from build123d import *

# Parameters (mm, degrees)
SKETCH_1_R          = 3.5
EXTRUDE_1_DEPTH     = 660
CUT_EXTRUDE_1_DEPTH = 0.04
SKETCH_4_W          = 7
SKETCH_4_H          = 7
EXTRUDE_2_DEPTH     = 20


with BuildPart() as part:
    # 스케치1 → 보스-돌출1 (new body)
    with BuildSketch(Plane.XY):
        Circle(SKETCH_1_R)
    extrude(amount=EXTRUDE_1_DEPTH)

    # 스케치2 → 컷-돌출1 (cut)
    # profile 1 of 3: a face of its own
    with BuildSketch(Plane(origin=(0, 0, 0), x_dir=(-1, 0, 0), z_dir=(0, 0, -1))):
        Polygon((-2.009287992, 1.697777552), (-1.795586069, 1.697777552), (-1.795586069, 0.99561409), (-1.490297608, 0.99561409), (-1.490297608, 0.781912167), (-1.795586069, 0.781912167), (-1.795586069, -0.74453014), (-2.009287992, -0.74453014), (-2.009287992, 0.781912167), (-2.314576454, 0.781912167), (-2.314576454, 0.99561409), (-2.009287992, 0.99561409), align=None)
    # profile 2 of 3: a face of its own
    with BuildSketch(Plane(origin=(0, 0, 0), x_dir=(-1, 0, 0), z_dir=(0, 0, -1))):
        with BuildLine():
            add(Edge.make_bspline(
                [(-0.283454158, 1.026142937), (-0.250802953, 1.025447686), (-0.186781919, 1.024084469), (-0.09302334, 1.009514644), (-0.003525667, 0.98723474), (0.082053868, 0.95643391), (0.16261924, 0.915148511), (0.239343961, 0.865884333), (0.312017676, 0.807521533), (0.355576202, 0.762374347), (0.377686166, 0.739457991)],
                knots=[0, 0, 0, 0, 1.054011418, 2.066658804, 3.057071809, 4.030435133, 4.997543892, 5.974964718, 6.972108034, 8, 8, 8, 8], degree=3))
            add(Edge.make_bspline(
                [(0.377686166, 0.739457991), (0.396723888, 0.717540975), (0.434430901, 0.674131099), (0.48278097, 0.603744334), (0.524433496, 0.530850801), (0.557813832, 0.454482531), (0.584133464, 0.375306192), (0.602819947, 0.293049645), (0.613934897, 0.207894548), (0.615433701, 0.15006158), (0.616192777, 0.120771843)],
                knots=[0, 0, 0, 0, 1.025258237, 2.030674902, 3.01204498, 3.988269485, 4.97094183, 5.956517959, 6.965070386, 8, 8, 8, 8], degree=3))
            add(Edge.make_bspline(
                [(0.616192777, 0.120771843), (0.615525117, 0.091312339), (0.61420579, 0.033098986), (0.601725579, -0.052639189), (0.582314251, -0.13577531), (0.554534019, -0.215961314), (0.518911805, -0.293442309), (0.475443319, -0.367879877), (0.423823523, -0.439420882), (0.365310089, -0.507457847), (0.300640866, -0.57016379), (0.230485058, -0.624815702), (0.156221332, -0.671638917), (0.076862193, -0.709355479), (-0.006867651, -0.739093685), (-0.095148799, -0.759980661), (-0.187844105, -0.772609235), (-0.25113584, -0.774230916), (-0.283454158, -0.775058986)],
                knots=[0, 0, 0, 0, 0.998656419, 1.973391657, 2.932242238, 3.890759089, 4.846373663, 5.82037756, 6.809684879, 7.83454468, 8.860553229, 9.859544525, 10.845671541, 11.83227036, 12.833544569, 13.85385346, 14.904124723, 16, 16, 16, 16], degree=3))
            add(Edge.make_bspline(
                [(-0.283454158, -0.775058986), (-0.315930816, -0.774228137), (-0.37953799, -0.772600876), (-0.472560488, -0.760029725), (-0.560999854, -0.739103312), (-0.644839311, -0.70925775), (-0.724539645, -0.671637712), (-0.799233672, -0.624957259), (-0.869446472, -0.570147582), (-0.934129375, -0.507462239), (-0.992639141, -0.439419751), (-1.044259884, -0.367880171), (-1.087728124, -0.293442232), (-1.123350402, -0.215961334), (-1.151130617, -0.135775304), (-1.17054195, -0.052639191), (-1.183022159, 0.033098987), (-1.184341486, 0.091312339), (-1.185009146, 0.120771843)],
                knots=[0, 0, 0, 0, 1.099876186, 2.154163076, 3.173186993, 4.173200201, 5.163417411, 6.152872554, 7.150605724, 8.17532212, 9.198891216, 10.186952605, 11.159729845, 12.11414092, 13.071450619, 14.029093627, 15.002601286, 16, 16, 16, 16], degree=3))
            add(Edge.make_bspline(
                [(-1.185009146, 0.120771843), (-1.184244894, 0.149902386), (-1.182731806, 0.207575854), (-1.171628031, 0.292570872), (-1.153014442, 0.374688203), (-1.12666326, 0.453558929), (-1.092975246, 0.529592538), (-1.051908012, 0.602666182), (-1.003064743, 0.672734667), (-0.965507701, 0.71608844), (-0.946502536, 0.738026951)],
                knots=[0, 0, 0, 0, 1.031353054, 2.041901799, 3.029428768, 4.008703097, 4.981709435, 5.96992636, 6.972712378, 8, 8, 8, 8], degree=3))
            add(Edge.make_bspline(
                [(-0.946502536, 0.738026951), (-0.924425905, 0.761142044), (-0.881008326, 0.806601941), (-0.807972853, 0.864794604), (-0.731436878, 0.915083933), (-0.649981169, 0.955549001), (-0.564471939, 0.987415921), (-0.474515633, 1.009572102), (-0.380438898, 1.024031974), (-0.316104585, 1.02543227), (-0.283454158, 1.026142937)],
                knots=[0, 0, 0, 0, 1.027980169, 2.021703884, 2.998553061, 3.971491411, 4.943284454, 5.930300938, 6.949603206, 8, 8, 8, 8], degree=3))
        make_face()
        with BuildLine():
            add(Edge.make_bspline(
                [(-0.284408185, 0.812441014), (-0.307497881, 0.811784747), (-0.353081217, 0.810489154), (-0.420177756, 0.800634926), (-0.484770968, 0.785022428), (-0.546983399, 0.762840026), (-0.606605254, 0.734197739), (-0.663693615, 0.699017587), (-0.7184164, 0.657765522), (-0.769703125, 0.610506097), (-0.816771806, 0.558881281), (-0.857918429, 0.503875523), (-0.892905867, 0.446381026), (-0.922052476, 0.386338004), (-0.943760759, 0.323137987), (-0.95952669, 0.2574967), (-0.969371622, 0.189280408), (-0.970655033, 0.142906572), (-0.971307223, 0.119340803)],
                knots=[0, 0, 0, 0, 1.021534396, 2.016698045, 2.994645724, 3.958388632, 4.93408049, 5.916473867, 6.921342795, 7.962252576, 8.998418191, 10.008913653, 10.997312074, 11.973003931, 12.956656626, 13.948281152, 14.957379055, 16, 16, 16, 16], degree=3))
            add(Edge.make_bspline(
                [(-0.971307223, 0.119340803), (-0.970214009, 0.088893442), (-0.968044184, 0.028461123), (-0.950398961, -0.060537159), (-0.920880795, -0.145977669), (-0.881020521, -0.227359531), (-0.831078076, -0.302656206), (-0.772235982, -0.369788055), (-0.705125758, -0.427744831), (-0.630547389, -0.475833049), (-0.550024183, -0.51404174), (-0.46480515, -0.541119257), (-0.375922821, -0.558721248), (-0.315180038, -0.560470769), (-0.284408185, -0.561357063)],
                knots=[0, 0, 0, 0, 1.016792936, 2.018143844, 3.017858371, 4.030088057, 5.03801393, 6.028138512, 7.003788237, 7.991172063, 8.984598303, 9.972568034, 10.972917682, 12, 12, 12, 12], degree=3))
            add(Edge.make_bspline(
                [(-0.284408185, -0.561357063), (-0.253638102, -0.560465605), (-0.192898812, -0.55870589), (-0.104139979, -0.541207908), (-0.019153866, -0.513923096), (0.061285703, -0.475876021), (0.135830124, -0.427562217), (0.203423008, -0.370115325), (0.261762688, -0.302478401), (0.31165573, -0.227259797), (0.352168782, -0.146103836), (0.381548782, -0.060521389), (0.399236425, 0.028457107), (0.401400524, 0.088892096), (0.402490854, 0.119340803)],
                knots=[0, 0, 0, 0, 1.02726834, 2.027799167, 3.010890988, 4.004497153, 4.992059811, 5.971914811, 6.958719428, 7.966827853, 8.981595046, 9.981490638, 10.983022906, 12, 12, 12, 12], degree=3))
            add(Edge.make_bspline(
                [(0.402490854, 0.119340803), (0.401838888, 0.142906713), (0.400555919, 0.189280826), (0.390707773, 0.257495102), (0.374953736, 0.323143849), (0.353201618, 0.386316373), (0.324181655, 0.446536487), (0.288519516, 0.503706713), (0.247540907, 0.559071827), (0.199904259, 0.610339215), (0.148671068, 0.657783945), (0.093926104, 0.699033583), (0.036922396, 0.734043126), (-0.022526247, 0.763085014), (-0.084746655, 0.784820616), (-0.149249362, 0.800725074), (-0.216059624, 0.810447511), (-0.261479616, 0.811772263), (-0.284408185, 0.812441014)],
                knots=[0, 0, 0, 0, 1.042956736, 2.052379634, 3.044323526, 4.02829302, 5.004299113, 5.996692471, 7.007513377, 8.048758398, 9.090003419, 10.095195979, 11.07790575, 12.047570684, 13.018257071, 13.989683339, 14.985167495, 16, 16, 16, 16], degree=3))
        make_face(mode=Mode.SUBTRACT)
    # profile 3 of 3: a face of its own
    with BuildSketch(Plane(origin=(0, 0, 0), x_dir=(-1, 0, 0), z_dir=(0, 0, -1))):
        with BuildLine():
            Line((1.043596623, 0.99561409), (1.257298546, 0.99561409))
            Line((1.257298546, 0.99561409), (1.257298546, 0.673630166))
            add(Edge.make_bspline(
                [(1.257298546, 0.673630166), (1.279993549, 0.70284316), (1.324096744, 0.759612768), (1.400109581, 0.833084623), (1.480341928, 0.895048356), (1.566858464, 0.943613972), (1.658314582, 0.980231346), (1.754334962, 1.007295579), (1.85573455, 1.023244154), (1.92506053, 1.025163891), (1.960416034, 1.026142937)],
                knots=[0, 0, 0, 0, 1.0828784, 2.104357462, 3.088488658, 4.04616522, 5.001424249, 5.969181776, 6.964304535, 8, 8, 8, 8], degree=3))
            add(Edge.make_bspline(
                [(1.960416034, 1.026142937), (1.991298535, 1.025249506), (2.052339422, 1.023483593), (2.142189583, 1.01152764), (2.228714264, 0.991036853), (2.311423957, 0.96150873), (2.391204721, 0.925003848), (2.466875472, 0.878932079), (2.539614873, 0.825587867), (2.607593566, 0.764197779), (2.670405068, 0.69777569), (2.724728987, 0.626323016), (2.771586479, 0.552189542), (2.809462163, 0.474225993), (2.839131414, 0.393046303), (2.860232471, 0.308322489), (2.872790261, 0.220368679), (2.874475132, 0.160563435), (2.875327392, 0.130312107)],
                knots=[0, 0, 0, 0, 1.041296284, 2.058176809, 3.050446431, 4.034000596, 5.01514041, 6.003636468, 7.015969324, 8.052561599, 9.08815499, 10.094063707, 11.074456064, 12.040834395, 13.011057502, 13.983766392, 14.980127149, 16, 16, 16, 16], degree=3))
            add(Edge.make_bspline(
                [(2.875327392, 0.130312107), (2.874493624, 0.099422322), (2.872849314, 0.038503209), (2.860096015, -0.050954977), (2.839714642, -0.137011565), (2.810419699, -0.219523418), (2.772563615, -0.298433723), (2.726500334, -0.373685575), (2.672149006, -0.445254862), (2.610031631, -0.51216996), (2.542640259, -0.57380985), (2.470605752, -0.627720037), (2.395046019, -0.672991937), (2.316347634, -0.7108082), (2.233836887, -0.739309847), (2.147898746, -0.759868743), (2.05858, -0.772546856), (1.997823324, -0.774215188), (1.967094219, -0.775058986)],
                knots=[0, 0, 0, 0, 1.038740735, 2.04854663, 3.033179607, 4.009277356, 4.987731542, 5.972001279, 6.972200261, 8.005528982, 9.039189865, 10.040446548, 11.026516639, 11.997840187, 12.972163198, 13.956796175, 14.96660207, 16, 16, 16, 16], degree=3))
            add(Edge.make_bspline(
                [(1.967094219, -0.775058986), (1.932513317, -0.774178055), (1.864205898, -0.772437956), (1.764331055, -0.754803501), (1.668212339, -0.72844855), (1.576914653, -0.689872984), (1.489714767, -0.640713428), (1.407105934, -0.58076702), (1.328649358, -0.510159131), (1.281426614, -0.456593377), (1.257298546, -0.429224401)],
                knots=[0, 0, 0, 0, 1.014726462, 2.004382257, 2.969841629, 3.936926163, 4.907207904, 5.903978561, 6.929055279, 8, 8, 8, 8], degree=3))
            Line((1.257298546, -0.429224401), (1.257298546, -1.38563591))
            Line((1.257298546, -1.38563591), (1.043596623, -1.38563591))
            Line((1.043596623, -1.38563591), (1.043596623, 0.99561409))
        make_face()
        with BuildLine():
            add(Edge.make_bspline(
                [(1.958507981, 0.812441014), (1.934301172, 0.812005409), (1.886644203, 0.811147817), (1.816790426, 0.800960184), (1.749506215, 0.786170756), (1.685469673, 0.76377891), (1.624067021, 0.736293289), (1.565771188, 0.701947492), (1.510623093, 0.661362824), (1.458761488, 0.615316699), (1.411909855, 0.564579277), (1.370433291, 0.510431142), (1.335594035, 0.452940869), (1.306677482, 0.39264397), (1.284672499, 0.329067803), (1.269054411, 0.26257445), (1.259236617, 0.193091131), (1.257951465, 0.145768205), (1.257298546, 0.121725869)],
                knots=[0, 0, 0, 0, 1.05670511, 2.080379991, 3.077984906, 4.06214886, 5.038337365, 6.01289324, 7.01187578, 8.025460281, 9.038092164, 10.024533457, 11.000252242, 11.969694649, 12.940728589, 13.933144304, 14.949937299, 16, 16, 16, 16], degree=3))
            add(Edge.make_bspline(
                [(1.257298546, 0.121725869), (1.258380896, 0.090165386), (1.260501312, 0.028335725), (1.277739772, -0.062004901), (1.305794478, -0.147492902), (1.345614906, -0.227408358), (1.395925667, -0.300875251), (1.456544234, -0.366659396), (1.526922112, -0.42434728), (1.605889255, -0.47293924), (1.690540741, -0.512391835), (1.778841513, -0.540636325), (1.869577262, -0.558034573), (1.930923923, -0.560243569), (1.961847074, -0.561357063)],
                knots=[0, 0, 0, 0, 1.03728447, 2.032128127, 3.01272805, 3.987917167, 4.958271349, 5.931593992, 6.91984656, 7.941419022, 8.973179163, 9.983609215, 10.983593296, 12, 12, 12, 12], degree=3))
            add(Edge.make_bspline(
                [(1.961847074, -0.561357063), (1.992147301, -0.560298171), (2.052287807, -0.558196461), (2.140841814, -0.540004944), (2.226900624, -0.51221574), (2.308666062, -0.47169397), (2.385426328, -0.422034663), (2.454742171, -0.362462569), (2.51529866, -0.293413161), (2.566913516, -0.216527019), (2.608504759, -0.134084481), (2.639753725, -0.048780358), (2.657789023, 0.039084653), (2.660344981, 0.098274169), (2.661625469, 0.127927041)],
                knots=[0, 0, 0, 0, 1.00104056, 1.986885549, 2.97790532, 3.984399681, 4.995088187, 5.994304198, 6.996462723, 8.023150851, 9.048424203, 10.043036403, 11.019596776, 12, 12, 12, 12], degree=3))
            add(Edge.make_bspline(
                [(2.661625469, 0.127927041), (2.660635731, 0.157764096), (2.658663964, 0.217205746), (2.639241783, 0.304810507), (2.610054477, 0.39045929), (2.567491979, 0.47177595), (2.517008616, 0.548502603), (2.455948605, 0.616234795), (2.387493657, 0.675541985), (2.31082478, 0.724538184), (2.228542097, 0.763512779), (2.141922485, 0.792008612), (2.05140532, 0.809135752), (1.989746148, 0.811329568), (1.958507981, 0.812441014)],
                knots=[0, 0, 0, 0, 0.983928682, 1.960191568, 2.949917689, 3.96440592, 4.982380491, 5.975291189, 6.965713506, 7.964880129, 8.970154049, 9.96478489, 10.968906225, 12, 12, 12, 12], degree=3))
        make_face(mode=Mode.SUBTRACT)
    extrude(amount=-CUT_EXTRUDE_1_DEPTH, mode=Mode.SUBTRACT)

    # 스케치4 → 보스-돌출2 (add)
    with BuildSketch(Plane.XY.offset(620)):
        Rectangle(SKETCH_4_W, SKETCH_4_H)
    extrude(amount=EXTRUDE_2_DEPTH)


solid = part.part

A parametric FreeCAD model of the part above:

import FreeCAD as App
import Part
import Sketcher

V = App.Vector


def add_polygon(sketch, points):
    """Adds a closed chain of lines whose ends are joined by coincident constraints."""
    first, n = sketch.GeometryCount, len(points)
    for a, b in zip(points, points[1:] + points[:1]):
        sketch.addGeometry(Part.LineSegment(App.Vector(*a, 0), App.Vector(*b, 0)), False)
    for i in range(n):
        sketch.addConstraint(Sketcher.Constraint("Coincident", first + i, 2, first + (i + 1) % n, 1))

doc = App.newDocument("Part")
body = doc.addObject("PartDesign::Body", "Body")

# Sketch on XY plane
sketch1 = doc.addObject("Sketcher::SketchObject", "Sketch")
body.addObject(sketch1)
sketch1.AttachmentSupport = (doc.XY_Plane, [""])
sketch1.MapMode = "FlatFace"
sketch1.addGeometry(Part.Circle(V(0, 0, 0), V(0, 0, 1), 3.5), False)
sketch1.addConstraint([
    Sketcher.Constraint("Coincident", 0, 3, -1, 1),
    Sketcher.Constraint("Diameter", 0, 7.0),
])
pad1 = doc.addObject("PartDesign::Pad", "Pad")
body.addObject(pad1)
pad1.Profile = sketch1
pad1.Length = 660

# Sketch on XY plane
sketch2 = doc.addObject("Sketcher::SketchObject", "Sketch001")
body.addObject(sketch2)
sketch2.AttachmentSupport = (doc.XY_Plane, [""])
sketch2.MapMode = "FlatFace"
add_polygon(sketch2, [(1.795586, 1.697778), (2.009288, 1.697778), (2.009288, 0.995614), (2.314576, 0.995614), (2.314576, 0.781912), (2.009288, 0.781912), (2.009288, -0.74453), (1.795586, -0.74453), (1.795586, 0.781912), (1.490298, 0.781912), (1.490298, 0.995614), (1.795586, 0.995614)])  # lines 0-11
sketch2.addGeometry(Part.BSplineCurve([V(0.283454, 1.026143, 0), V(0.250803, 1.025448, 0), V(0.186782, 1.024084, 0), V(0.093023, 1.009515, 0), V(0.003526, 0.987235, 0), V(-0.082054, 0.956434, 0), V(-0.162619, 0.915149, 0), V(-0.239344, 0.865884, 0), V(-0.312018, 0.807522, 0), V(-0.355576, 0.762374, 0), V(-0.377686, 0.739458, 0)], [4, 1, 1, 1, 1, 1, 1, 1, 4], [0, 1.054011418, 2.066658804, 3.057071809, 4.030435133, 4.997543892, 5.974964718, 6.972108034, 8], False, 3, [1, 1, 1, 1, 1, 1, 1, 1, 1, 1, 1], False), False)  # 12
sketch2.addGeometry(Part.BSplineCurve([V(0.946503, 0.738027, 0), V(0.924426, 0.761142, 0), V(0.881008, 0.806602, 0), V(0.807973, 0.864795, 0), V(0.731437, 0.915084, 0), V(0.649981, 0.955549, 0), V(0.564472, 0.987416, 0), V(0.474516, 1.009572, 0), V(0.380439, 1.024032, 0), V(0.316105, 1.025432, 0), V(0.283454, 1.026143, 0)], [4, 1, 1, 1, 1, 1, 1, 1, 4], [0, 1.027980169, 2.021703884, 2.998553061, 3.971491411, 4.943284454, 5.930300938, 6.949603206, 8], False, 3, [1, 1, 1, 1, 1, 1, 1, 1, 1, 1, 1], False), False)  # 13
sketch2.addGeometry(Part.BSplineCurve([V(1.185009, 0.120772, 0), V(1.184245, 0.149902, 0), V(1.182732, 0.207576, 0), V(1.171628, 0.292571, 0), V(1.153014, 0.374688, 0), V(1.126663, 0.453559, 0), V(1.092975, 0.529593, 0), V(1.051908, 0.602666, 0), V(1.003065, 0.672735, 0), V(0.965508, 0.716088, 0), V(0.946503, 0.738027, 0)], [4, 1, 1, 1, 1, 1, 1, 1, 4], [0, 1.031353054, 2.041901799, 3.029428768, 4.008703097, 4.981709435, 5.96992636, 6.972712378, 8], False, 3, [1, 1, 1, 1, 1, 1, 1, 1, 1, 1, 1], False), False)  # 14
sketch2.addGeometry(Part.BSplineCurve([V(0.283454, -0.775059, 0), V(0.315931, -0.774228, 0), V(0.379538, -0.772601, 0), V(0.47256, -0.76003, 0), V(0.561, -0.739103, 0), V(0.644839, -0.709258, 0), V(0.72454, -0.671638, 0), V(0.799234, -0.624957, 0), V(0.869446, -0.570148, 0), V(0.934129, -0.507462, 0), V(0.992639, -0.43942, 0), V(1.04426, -0.36788, 0), V(1.087728, -0.293442, 0), V(1.12335, -0.215961, 0), V(1.151131, -0.135775, 0), V(1.170542, -0.052639, 0), V(1.183022, 0.033099, 0), V(1.184341, 0.091312, 0), V(1.185009, 0.120772, 0)], [4, 1, 1, 1, 1, 1, 1, 1, 1, 1, 1, 1, 1, 1, 1, 1, 4], [0, 1.099876186, 2.154163076, 3.173186993, 4.173200201, 5.163417411, 6.152872554, 7.150605724, 8.17532212, 9.198891216, 10.186952605, 11.159729845, 12.11414092, 13.071450619, 14.029093627, 15.002601286, 16], False, 3, [1, 1, 1, 1, 1, 1, 1, 1, 1, 1, 1, 1, 1, 1, 1, 1, 1, 1, 1], False), False)  # 15
sketch2.addGeometry(Part.BSplineCurve([V(-0.616193, 0.120772, 0), V(-0.615525, 0.091312, 0), V(-0.614206, 0.033099, 0), V(-0.601726, -0.052639, 0), V(-0.582314, -0.135775, 0), V(-0.554534, -0.215961, 0), V(-0.518912, -0.293442, 0), V(-0.475443, -0.36788, 0), V(-0.423824, -0.439421, 0), V(-0.36531, -0.507458, 0), V(-0.300641, -0.570164, 0), V(-0.230485, -0.624816, 0), V(-0.156221, -0.671639, 0), V(-0.076862, -0.709355, 0), V(0.006868, -0.739094, 0), V(0.095149, -0.759981, 0), V(0.187844, -0.772609, 0), V(0.251136, -0.774231, 0), V(0.283454, -0.775059, 0)], [4, 1, 1, 1, 1, 1, 1, 1, 1, 1, 1, 1, 1, 1, 1, 1, 4], [0, 0.998656419, 1.973391657, 2.932242238, 3.890759089, 4.846373663, 5.82037756, 6.809684879, 7.83454468, 8.860553229, 9.859544525, 10.845671541, 11.83227036, 12.833544569, 13.85385346, 14.904124723, 16], False, 3, [1, 1, 1, 1, 1, 1, 1, 1, 1, 1, 1, 1, 1, 1, 1, 1, 1, 1, 1], False), False)  # 16
sketch2.addGeometry(Part.BSplineCurve([V(-0.377686, 0.739458, 0), V(-0.396724, 0.717541, 0), V(-0.434431, 0.674131, 0), V(-0.482781, 0.603744, 0), V(-0.524433, 0.530851, 0), V(-0.557814, 0.454483, 0), V(-0.584133, 0.375306, 0), V(-0.60282, 0.29305, 0), V(-0.613935, 0.207895, 0), V(-0.615434, 0.150062, 0), V(-0.616193, 0.120772, 0)], [4, 1, 1, 1, 1, 1, 1, 1, 4], [0, 1.025258237, 2.030674902, 3.01204498, 3.988269485, 4.97094183, 5.956517959, 6.965070386, 8], False, 3, [1, 1, 1, 1, 1, 1, 1, 1, 1, 1, 1], False), False)  # 17
sketch2.addGeometry(Part.BSplineCurve([V(-0.402491, 0.119341, 0), V(-0.401839, 0.142907, 0), V(-0.400556, 0.189281, 0), V(-0.390708, 0.257495, 0), V(-0.374954, 0.323144, 0), V(-0.353202, 0.386316, 0), V(-0.324182, 0.446536, 0), V(-0.28852, 0.503707, 0), V(-0.247541, 0.559072, 0), V(-0.199904, 0.610339, 0), V(-0.148671, 0.657784, 0), V(-0.093926, 0.699034, 0), V(-0.036922, 0.734043, 0), V(0.022526, 0.763085, 0), V(0.084747, 0.784821, 0), V(0.149249, 0.800725, 0), V(0.21606, 0.810448, 0), V(0.26148, 0.811772, 0), V(0.284408, 0.812441, 0)], [4, 1, 1, 1, 1, 1, 1, 1, 1, 1, 1, 1, 1, 1, 1, 1, 4], [0, 1.042956736, 2.052379634, 3.044323526, 4.02829302, 5.004299113, 5.996692471, 7.007513377, 8.048758398, 9.090003419, 10.095195979, 11.07790575, 12.047570684, 13.018257071, 13.989683339, 14.985167495, 16], False, 3, [1, 1, 1, 1, 1, 1, 1, 1, 1, 1, 1, 1, 1, 1, 1, 1, 1, 1, 1], False), False)  # 18
sketch2.addGeometry(Part.BSplineCurve([V(0.284408, -0.561357, 0), V(0.253638, -0.560466, 0), V(0.192899, -0.558706, 0), V(0.10414, -0.541208, 0), V(0.019154, -0.513923, 0), V(-0.061286, -0.475876, 0), V(-0.13583, -0.427562, 0), V(-0.203423, -0.370115, 0), V(-0.261763, -0.302478, 0), V(-0.311656, -0.22726, 0), V(-0.352169, -0.146104, 0), V(-0.381549, -0.060521, 0), V(-0.399236, 0.028457, 0), V(-0.401401, 0.088892, 0), V(-0.402491, 0.119341, 0)], [4, 1, 1, 1, 1, 1, 1, 1, 1, 1, 1, 1, 4], [0, 1.02726834, 2.027799167, 3.010890988, 4.004497153, 4.992059811, 5.971914811, 6.958719428, 7.966827853, 8.981595046, 9.981490638, 10.983022906, 12], False, 3, [1, 1, 1, 1, 1, 1, 1, 1, 1, 1, 1, 1, 1, 1, 1], False), False)  # 19
sketch2.addGeometry(Part.BSplineCurve([V(0.971307, 0.119341, 0), V(0.970214, 0.088893, 0), V(0.968044, 0.028461, 0), V(0.950399, -0.060537, 0), V(0.920881, -0.145978, 0), V(0.881021, -0.22736, 0), V(0.831078, -0.302656, 0), V(0.772236, -0.369788, 0), V(0.705126, -0.427745, 0), V(0.630547, -0.475833, 0), V(0.550024, -0.514042, 0), V(0.464805, -0.541119, 0), V(0.375923, -0.558721, 0), V(0.31518, -0.560471, 0), V(0.284408, -0.561357, 0)], [4, 1, 1, 1, 1, 1, 1, 1, 1, 1, 1, 1, 4], [0, 1.016792936, 2.018143844, 3.017858371, 4.030088057, 5.03801393, 6.028138512, 7.003788237, 7.991172063, 8.984598303, 9.972568034, 10.972917682, 12], False, 3, [1, 1, 1, 1, 1, 1, 1, 1, 1, 1, 1, 1, 1, 1, 1], False), False)  # 20
sketch2.addGeometry(Part.BSplineCurve([V(0.284408, 0.812441, 0), V(0.307498, 0.811785, 0), V(0.353081, 0.810489, 0), V(0.420178, 0.800635, 0), V(0.484771, 0.785022, 0), V(0.546983, 0.76284, 0), V(0.606605, 0.734198, 0), V(0.663694, 0.699018, 0), V(0.718416, 0.657766, 0), V(0.769703, 0.610506, 0), V(0.816772, 0.558881, 0), V(0.857918, 0.503876, 0), V(0.892906, 0.446381, 0), V(0.922052, 0.386338, 0), V(0.943761, 0.323138, 0), V(0.959527, 0.257497, 0), V(0.969372, 0.18928, 0), V(0.970655, 0.142907, 0), V(0.971307, 0.119341, 0)], [4, 1, 1, 1, 1, 1, 1, 1, 1, 1, 1, 1, 1, 1, 1, 1, 4], [0, 1.021534396, 2.016698045, 2.994645724, 3.958388632, 4.93408049, 5.916473867, 6.921342795, 7.962252576, 8.998418191, 10.008913653, 10.997312074, 11.973003931, 12.956656626, 13.948281152, 14.957379055, 16], False, 3, [1, 1, 1, 1, 1, 1, 1, 1, 1, 1, 1, 1, 1, 1, 1, 1, 1, 1, 1], False), False)  # 21
sketch2.addGeometry(Part.LineSegment(V(-1.257299, 0.995614, 0), V(-1.043597, 0.995614, 0)), False)  # 22
sketch2.addGeometry(Part.LineSegment(V(-1.043597, 0.995614, 0), V(-1.043597, -1.385636, 0)), False)  # 23
sketch2.addGeometry(Part.LineSegment(V(-1.043597, -1.385636, 0), V(-1.257299, -1.385636, 0)), False)  # 24
sketch2.addGeometry(Part.LineSegment(V(-1.257299, -1.385636, 0), V(-1.257299, -0.429224, 0)), False)  # 25
sketch2.addGeometry(Part.BSplineCurve([V(-1.967094, -0.775059, 0), V(-1.932513, -0.774178, 0), V(-1.864206, -0.772438, 0), V(-1.764331, -0.754804, 0), V(-1.668212, -0.728449, 0), V(-1.576915, -0.689873, 0), V(-1.489715, -0.640713, 0), V(-1.407106, -0.580767, 0), V(-1.328649, -0.510159, 0), V(-1.281427, -0.456593, 0), V(-1.257299, -0.429224, 0)], [4, 1, 1, 1, 1, 1, 1, 1, 4], [0, 1.014726462, 2.004382257, 2.969841629, 3.936926163, 4.907207904, 5.903978561, 6.929055279, 8], False, 3, [1, 1, 1, 1, 1, 1, 1, 1, 1, 1, 1], False), False)  # 26
sketch2.addGeometry(Part.BSplineCurve([V(-2.875327, 0.130312, 0), V(-2.874494, 0.099422, 0), V(-2.872849, 0.038503, 0), V(-2.860096, -0.050955, 0), V(-2.839715, -0.137012, 0), V(-2.81042, -0.219523, 0), V(-2.772564, -0.298434, 0), V(-2.7265, -0.373686, 0), V(-2.672149, -0.445255, 0), V(-2.610032, -0.51217, 0), V(-2.54264, -0.57381, 0), V(-2.470606, -0.62772, 0), V(-2.395046, -0.672992, 0), V(-2.316348, -0.710808, 0), V(-2.233837, -0.73931, 0), V(-2.147899, -0.759869, 0), V(-2.05858, -0.772547, 0), V(-1.997823, -0.774215, 0), V(-1.967094, -0.775059, 0)], [4, 1, 1, 1, 1, 1, 1, 1, 1, 1, 1, 1, 1, 1, 1, 1, 4], [0, 1.038740735, 2.04854663, 3.033179607, 4.009277356, 4.987731542, 5.972001279, 6.972200261, 8.005528982, 9.039189865, 10.040446548, 11.026516639, 11.997840187, 12.972163198, 13.956796175, 14.96660207, 16], False, 3, [1, 1, 1, 1, 1, 1, 1, 1, 1, 1, 1, 1, 1, 1, 1, 1, 1, 1, 1], False), False)  # 27
sketch2.addGeometry(Part.BSplineCurve([V(-1.960416, 1.026143, 0), V(-1.991299, 1.02525, 0), V(-2.052339, 1.023484, 0), V(-2.14219, 1.011528, 0), V(-2.228714, 0.991037, 0), V(-2.311424, 0.961509, 0), V(-2.391205, 0.925004, 0), V(-2.466875, 0.878932, 0), V(-2.539615, 0.825588, 0), V(-2.607594, 0.764198, 0), V(-2.670405, 0.697776, 0), V(-2.724729, 0.626323, 0), V(-2.771586, 0.55219, 0), V(-2.809462, 0.474226, 0), V(-2.839131, 0.393046, 0), V(-2.860232, 0.308322, 0), V(-2.87279, 0.220369, 0), V(-2.874475, 0.160563, 0), V(-2.875327, 0.130312, 0)], [4, 1, 1, 1, 1, 1, 1, 1, 1, 1, 1, 1, 1, 1, 1, 1, 4], [0, 1.041296284, 2.058176809, 3.050446431, 4.034000596, 5.01514041, 6.003636468, 7.015969324, 8.052561599, 9.08815499, 10.094063707, 11.074456064, 12.040834395, 13.011057502, 13.983766392, 14.980127149, 16], False, 3, [1, 1, 1, 1, 1, 1, 1, 1, 1, 1, 1, 1, 1, 1, 1, 1, 1, 1, 1], False), False)  # 28
sketch2.addGeometry(Part.BSplineCurve([V(-1.257299, 0.67363, 0), V(-1.279994, 0.702843, 0), V(-1.324097, 0.759613, 0), V(-1.40011, 0.833085, 0), V(-1.480342, 0.895048, 0), V(-1.566858, 0.943614, 0), V(-1.658315, 0.980231, 0), V(-1.754335, 1.007296, 0), V(-1.855735, 1.023244, 0), V(-1.925061, 1.025164, 0), V(-1.960416, 1.026143, 0)], [4, 1, 1, 1, 1, 1, 1, 1, 4], [0, 1.0828784, 2.104357462, 3.088488658, 4.04616522, 5.001424249, 5.969181776, 6.964304535, 8], False, 3, [1, 1, 1, 1, 1, 1, 1, 1, 1, 1, 1], False), False)  # 29
sketch2.addGeometry(Part.LineSegment(V(-1.257299, 0.67363, 0), V(-1.257299, 0.995614, 0)), False)  # 30
sketch2.addGeometry(Part.BSplineCurve([V(-2.661625, 0.127927, 0), V(-2.660636, 0.157764, 0), V(-2.658664, 0.217206, 0), V(-2.639242, 0.304811, 0), V(-2.610054, 0.390459, 0), V(-2.567492, 0.471776, 0), V(-2.517009, 0.548503, 0), V(-2.455949, 0.616235, 0), V(-2.387494, 0.675542, 0), V(-2.310825, 0.724538, 0), V(-2.228542, 0.763513, 0), V(-2.141922, 0.792009, 0), V(-2.051405, 0.809136, 0), V(-1.989746, 0.81133, 0), V(-1.958508, 0.812441, 0)], [4, 1, 1, 1, 1, 1, 1, 1, 1, 1, 1, 1, 4], [0, 0.983928682, 1.960191568, 2.949917689, 3.96440592, 4.982380491, 5.975291189, 6.965713506, 7.964880129, 8.970154049, 9.96478489, 10.968906225, 12], False, 3, [1, 1, 1, 1, 1, 1, 1, 1, 1, 1, 1, 1, 1, 1, 1], False), False)  # 31
sketch2.addGeometry(Part.BSplineCurve([V(-1.961847, -0.561357, 0), V(-1.992147, -0.560298, 0), V(-2.052288, -0.558196, 0), V(-2.140842, -0.540005, 0), V(-2.226901, -0.512216, 0), V(-2.308666, -0.471694, 0), V(-2.385426, -0.422035, 0), V(-2.454742, -0.362463, 0), V(-2.515299, -0.293413, 0), V(-2.566914, -0.216527, 0), V(-2.608505, -0.134084, 0), V(-2.639754, -0.04878, 0), V(-2.657789, 0.039085, 0), V(-2.660345, 0.098274, 0), V(-2.661625, 0.127927, 0)], [4, 1, 1, 1, 1, 1, 1, 1, 1, 1, 1, 1, 4], [0, 1.00104056, 1.986885549, 2.97790532, 3.984399681, 4.995088187, 5.994304198, 6.996462723, 8.023150851, 9.048424203, 10.043036403, 11.019596776, 12], False, 3, [1, 1, 1, 1, 1, 1, 1, 1, 1, 1, 1, 1, 1, 1, 1], False), False)  # 32
sketch2.addGeometry(Part.BSplineCurve([V(-1.257299, 0.121726, 0), V(-1.258381, 0.090165, 0), V(-1.260501, 0.028336, 0), V(-1.27774, -0.062005, 0), V(-1.305794, -0.147493, 0), V(-1.345615, -0.227408, 0), V(-1.395926, -0.300875, 0), V(-1.456544, -0.366659, 0), V(-1.526922, -0.424347, 0), V(-1.605889, -0.472939, 0), V(-1.690541, -0.512392, 0), V(-1.778842, -0.540636, 0), V(-1.869577, -0.558035, 0), V(-1.930924, -0.560244, 0), V(-1.961847, -0.561357, 0)], [4, 1, 1, 1, 1, 1, 1, 1, 1, 1, 1, 1, 4], [0, 1.03728447, 2.032128127, 3.01272805, 3.987917167, 4.958271349, 5.931593992, 6.91984656, 7.941419022, 8.973179163, 9.983609215, 10.983593296, 12], False, 3, [1, 1, 1, 1, 1, 1, 1, 1, 1, 1, 1, 1, 1, 1, 1], False), False)  # 33
sketch2.addGeometry(Part.BSplineCurve([V(-1.958508, 0.812441, 0), V(-1.934301, 0.812005, 0), V(-1.886644, 0.811148, 0), V(-1.81679, 0.80096, 0), V(-1.749506, 0.786171, 0), V(-1.68547, 0.763779, 0), V(-1.624067, 0.736293, 0), V(-1.565771, 0.701947, 0), V(-1.510623, 0.661363, 0), V(-1.458761, 0.615317, 0), V(-1.41191, 0.564579, 0), V(-1.370433, 0.510431, 0), V(-1.335594, 0.452941, 0), V(-1.306677, 0.392644, 0), V(-1.284672, 0.329068, 0), V(-1.269054, 0.262574, 0), V(-1.259237, 0.193091, 0), V(-1.257951, 0.145768, 0), V(-1.257299, 0.121726, 0)], [4, 1, 1, 1, 1, 1, 1, 1, 1, 1, 1, 1, 1, 1, 1, 1, 4], [0, 1.05670511, 2.080379991, 3.077984906, 4.06214886, 5.038337365, 6.01289324, 7.01187578, 8.025460281, 9.038092164, 10.024533457, 11.000252242, 11.969694649, 12.940728589, 13.933144304, 14.949937299, 16], False, 3, [1, 1, 1, 1, 1, 1, 1, 1, 1, 1, 1, 1, 1, 1, 1, 1, 1, 1, 1], False), False)  # 34
sketch2.addConstraint([
    Sketcher.Constraint("Block", 12),
    Sketcher.Constraint("Block", 13),
    Sketcher.Constraint("Block", 14),
    Sketcher.Constraint("Block", 15),
    Sketcher.Constraint("Block", 16),
    Sketcher.Constraint("Block", 17),
    Sketcher.Constraint("Block", 18),
    Sketcher.Constraint("Block", 19),
    Sketcher.Constraint("Block", 20),
    Sketcher.Constraint("Block", 21),
    Sketcher.Constraint("Block", 26),
    Sketcher.Constraint("Block", 27),
    Sketcher.Constraint("Block", 28),
    Sketcher.Constraint("Block", 29),
    Sketcher.Constraint("Block", 31),
    Sketcher.Constraint("Block", 32),
    Sketcher.Constraint("Block", 33),
    Sketcher.Constraint("Block", 34),
    Sketcher.Constraint("Coincident", 22, 2, 23, 1),
    Sketcher.Constraint("Coincident", 23, 2, 24, 1),
    Sketcher.Constraint("Coincident", 24, 2, 25, 1),
    Sketcher.Constraint("Coincident", 25, 2, 26, 2),
    Sketcher.Constraint("Coincident", 29, 1, 30, 1),
    Sketcher.Constraint("Coincident", 30, 2, 22, 1),
    Sketcher.Constraint("Horizontal", 0),
    Sketcher.Constraint("Vertical", 1),
    Sketcher.Constraint("Horizontal", 2),
    Sketcher.Constraint("Vertical", 3),
    Sketcher.Constraint("Horizontal", 4),
    Sketcher.Constraint("Vertical", 5),
    Sketcher.Constraint("Horizontal", 6),
    Sketcher.Constraint("Vertical", 7),
    Sketcher.Constraint("Horizontal", 8),
    Sketcher.Constraint("Vertical", 9),
    Sketcher.Constraint("Horizontal", 10),
    Sketcher.Constraint("Vertical", 11),
    Sketcher.Constraint("Horizontal", 22),
    Sketcher.Constraint("Vertical", 23),
    Sketcher.Constraint("Horizontal", 24),
    Sketcher.Constraint("Vertical", 25),
    Sketcher.Constraint("Vertical", 30),
    Sketcher.Constraint("Horizontal", 4, 2, 7, 2),
    Sketcher.Constraint("Horizontal", 2, 2, 9, 2),
    Sketcher.Constraint("Horizontal", 10, 2, 22, 2),
    Sketcher.Constraint("Vertical", 1, 2, 4, 2),
    Sketcher.Constraint("Vertical", 7, 2, 10, 2),
    Sketcher.Constraint("Equal", 4, 8),
    Sketcher.Constraint("Equal", 6, 22),
    Sketcher.Constraint("Equal", 24, 3),
    Sketcher.Constraint("DistanceX", 0, 1, 0, 2, 0.213702),
    Sketcher.Constraint("DistanceX", 2, 1, 2, 2, 0.305288),
    Sketcher.Constraint("DistanceY", 23, 2, 23, 1, 2.38125),
    Sketcher.Constraint("DistanceY", 25, 1, 25, 2, 0.956412),
    Sketcher.Constraint("DistanceY", 1, 2, 1, 1, 0.702163),
    Sketcher.Constraint("DistanceY", 5, 2, 5, 1, 1.526442),
    Sketcher.Constraint("DistanceX", -1, 1, 0, 2, 2.009288),
])
pocket1 = doc.addObject("PartDesign::Pocket", "Pocket")
body.addObject(pocket1)
pocket1.Profile = sketch2
pocket1.Length = 0.04
pocket1.Reversed = True

# Sketch on XY plane
sketch3 = doc.addObject("Sketcher::SketchObject", "Sketch002")
body.addObject(sketch3)
sketch3.AttachmentSupport = (doc.XY_Plane, [""])
sketch3.MapMode = "FlatFace"
sketch3.AttachmentOffset = App.Placement(V(0, 0, 620), App.Rotation())
add_polygon(sketch3, [(-4, 4), (-4, -4), (4, -4), (4, 4)])  # lines 0-3
sketch3.addConstraint([
    Sketcher.Constraint("Vertical", 0),
    Sketcher.Constraint("Horizontal", 1),
    Sketcher.Constraint("Vertical", 2),
    Sketcher.Constraint("Horizontal", 3),
    Sketcher.Constraint("Symmetric", 0, 2, 2, 2, -1, 1),
    Sketcher.Constraint("Equal", 3, 0),
    Sketcher.Constraint("DistanceX", 1, 1, 1, 2, 7.0),
])
pad2 = doc.addObject("PartDesign::Pad", "Pad001")
body.addObject(pad2)
pad2.Profile = sketch3
pad2.Length = 20

doc.recompute()
